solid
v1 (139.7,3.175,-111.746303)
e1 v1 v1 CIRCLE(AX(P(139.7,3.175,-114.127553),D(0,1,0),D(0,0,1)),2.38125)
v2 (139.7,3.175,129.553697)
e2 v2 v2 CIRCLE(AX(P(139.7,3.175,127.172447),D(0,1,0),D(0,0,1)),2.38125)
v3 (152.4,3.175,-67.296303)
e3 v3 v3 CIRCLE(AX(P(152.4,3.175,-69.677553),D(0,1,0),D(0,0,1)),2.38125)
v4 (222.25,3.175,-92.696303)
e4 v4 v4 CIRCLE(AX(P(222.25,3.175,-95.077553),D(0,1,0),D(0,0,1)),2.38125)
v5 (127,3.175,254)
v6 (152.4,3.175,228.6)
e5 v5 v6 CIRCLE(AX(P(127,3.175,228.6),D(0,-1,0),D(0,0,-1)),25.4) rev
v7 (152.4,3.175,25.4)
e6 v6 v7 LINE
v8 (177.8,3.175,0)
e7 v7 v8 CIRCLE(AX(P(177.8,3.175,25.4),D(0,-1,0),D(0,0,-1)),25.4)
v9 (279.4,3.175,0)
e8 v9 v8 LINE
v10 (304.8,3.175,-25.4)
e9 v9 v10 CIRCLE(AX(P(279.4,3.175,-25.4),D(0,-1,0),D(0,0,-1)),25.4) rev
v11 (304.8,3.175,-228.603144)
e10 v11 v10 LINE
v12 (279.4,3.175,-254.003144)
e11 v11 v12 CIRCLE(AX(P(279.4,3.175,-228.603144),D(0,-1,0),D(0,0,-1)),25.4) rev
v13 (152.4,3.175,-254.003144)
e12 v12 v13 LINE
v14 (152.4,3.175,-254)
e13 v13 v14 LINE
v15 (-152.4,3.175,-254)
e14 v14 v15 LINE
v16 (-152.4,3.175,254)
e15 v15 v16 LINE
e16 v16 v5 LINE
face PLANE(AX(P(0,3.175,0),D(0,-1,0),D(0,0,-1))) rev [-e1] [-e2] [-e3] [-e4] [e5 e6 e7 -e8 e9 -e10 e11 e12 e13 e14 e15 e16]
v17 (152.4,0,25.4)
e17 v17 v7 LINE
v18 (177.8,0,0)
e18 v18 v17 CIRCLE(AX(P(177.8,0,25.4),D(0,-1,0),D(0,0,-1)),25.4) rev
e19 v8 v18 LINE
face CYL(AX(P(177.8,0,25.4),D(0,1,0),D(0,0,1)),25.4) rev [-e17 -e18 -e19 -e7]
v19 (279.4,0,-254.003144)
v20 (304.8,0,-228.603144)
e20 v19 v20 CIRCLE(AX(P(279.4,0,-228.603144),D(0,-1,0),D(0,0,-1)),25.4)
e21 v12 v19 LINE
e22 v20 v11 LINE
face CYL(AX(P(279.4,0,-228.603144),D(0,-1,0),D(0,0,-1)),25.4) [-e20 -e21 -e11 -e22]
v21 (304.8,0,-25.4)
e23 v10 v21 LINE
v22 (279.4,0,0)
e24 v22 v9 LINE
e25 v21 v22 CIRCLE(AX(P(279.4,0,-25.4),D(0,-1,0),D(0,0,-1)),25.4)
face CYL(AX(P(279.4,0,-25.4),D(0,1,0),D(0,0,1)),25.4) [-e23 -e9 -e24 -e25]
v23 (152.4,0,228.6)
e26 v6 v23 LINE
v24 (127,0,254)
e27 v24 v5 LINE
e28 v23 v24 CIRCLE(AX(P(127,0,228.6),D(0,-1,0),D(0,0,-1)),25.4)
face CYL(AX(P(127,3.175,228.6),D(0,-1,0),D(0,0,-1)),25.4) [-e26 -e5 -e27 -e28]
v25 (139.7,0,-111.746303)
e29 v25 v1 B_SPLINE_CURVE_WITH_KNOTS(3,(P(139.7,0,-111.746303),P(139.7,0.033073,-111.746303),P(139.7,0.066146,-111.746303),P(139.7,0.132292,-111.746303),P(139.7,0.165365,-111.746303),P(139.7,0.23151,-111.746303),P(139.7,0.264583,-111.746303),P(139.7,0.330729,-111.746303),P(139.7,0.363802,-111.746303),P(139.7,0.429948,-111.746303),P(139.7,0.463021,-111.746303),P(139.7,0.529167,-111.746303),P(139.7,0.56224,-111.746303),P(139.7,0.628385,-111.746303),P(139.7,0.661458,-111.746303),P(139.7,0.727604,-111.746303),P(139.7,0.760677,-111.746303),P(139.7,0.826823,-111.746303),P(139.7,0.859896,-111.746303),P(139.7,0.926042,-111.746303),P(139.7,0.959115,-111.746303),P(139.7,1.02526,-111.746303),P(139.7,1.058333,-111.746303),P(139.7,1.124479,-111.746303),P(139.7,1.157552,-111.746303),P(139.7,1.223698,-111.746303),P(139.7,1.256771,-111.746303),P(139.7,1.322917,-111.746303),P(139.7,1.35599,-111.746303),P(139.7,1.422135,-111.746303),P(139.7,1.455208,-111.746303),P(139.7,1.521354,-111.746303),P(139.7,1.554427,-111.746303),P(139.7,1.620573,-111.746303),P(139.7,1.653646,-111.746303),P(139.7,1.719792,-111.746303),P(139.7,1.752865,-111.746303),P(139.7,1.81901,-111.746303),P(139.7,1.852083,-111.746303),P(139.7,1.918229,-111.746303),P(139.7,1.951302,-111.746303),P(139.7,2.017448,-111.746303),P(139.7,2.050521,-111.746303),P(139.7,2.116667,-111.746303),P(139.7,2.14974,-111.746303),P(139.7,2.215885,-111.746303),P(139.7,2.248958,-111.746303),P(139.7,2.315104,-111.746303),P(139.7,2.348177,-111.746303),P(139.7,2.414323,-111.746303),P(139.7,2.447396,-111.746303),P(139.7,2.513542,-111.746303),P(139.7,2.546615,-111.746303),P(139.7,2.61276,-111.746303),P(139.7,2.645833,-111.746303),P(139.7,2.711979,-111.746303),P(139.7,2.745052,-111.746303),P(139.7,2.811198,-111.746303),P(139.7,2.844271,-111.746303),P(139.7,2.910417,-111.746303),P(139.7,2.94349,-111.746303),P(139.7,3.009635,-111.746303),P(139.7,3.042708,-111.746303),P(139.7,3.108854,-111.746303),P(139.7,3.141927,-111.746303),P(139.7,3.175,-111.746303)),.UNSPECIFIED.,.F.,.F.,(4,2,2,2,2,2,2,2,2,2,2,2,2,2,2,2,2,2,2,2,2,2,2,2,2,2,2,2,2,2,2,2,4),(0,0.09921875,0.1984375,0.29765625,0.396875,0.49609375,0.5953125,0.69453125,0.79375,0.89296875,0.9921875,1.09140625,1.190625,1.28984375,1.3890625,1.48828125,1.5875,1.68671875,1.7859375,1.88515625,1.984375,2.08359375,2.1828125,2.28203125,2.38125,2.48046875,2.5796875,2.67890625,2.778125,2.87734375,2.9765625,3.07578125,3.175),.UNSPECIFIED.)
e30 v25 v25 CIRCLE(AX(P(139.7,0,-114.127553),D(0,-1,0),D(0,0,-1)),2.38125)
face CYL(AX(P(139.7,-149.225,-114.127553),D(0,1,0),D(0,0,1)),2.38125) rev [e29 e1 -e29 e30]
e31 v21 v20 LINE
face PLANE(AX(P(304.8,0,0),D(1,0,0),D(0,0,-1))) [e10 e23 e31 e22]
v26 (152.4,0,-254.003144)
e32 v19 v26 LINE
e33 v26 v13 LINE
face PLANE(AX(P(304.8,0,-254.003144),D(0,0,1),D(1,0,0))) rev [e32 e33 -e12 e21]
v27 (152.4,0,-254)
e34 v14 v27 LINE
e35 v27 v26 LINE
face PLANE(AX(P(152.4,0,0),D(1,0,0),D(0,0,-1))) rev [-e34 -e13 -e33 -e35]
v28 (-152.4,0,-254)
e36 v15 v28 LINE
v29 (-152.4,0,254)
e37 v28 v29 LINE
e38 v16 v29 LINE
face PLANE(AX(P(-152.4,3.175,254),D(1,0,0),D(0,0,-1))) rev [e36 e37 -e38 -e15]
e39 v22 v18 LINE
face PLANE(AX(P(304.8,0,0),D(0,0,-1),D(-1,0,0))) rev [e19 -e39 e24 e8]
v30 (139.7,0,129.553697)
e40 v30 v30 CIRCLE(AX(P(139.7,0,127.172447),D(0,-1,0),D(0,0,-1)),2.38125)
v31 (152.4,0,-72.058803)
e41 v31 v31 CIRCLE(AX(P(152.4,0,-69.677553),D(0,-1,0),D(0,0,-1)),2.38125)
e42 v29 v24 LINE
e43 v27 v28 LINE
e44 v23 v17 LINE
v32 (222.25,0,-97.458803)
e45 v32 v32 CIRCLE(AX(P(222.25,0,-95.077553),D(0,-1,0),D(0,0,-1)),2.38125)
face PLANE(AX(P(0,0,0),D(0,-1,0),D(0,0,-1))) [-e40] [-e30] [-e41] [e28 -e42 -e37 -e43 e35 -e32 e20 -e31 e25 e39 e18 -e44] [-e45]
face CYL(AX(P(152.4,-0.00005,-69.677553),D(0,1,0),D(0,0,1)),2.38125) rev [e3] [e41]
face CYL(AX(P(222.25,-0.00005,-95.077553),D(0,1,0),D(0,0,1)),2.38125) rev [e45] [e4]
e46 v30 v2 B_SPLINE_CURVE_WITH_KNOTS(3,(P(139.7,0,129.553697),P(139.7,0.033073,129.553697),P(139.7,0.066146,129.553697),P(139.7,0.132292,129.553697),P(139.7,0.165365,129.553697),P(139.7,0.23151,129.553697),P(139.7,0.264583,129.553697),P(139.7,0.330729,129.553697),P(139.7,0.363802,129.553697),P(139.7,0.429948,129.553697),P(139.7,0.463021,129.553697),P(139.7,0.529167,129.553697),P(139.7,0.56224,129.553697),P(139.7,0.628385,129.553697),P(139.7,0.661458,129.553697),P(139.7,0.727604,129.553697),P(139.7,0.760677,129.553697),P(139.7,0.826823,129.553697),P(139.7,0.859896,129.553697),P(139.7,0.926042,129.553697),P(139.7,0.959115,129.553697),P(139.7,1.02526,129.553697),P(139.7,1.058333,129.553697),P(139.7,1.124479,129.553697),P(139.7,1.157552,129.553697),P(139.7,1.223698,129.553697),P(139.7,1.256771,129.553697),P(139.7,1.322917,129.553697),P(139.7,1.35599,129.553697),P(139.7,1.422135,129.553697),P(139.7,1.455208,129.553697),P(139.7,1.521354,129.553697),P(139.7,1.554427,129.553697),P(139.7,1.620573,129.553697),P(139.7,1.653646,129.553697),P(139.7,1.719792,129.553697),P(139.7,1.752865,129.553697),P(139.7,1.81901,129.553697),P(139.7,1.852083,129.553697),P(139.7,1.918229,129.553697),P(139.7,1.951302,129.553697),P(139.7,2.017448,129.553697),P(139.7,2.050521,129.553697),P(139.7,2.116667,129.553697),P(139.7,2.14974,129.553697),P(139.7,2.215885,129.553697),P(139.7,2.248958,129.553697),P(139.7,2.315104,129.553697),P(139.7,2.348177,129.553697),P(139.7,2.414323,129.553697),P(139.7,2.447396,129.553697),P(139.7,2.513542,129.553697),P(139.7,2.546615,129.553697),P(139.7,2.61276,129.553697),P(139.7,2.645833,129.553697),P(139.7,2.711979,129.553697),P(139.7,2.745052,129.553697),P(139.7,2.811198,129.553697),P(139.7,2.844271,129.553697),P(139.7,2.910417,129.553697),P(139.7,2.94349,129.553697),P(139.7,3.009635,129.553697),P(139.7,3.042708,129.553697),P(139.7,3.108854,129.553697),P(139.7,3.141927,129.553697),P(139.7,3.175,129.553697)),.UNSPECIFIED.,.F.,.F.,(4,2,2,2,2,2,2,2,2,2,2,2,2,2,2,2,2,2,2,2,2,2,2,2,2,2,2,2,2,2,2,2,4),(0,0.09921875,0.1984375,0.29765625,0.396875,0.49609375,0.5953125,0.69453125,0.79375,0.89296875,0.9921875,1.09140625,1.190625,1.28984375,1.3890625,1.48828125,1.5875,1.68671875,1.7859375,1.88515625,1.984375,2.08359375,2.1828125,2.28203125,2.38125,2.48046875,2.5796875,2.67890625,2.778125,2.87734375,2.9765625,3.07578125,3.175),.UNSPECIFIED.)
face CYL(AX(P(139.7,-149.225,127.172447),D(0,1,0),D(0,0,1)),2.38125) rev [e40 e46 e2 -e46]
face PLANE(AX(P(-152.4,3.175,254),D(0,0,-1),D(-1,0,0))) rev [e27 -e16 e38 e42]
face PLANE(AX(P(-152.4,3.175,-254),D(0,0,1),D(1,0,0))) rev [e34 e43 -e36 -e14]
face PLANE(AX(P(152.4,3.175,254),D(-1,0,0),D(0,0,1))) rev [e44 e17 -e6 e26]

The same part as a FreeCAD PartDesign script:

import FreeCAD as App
import Part
import Sketcher

V = App.Vector
Q = App.Units.Quantity


def edges_at(feature, points):
    """Names of the edges that pass closest to the given points."""
    edges = feature.Shape.Edges
    near = lambda p: min(range(len(edges)), key=lambda i: edges[i].distToShape(Part.Vertex(*p))[0])
    return sorted({f"Edge{near(p) + 1}" for p in points})


def add_polygon(sketch, points):
    """Adds a closed chain of lines whose ends are joined by coincident constraints."""
    first, n = sketch.GeometryCount, len(points)
    for a, b in zip(points, points[1:] + points[:1]):
        sketch.addGeometry(Part.LineSegment(App.Vector(*a, 0), App.Vector(*b, 0)), False)
    for i in range(n):
        sketch.addConstraint(Sketcher.Constraint("Coincident", first + i, 2, first + (i + 1) % n, 1))

doc = App.newDocument("Part")
body = doc.addObject("PartDesign::Body", "Body")

# Sketch on XZ plane
sketch1 = body.newObject("Sketcher::SketchObject", "Sketch")
sketch1.AttachmentSupport = (doc.getObject("XZ_Plane"), [""])
sketch1.MapMode = "FlatFace"
add_polygon(sketch1, [(-152, -254), (-152, 254), (152, 254), (152, -254)])  # lines 0-3
sketch1.addConstraint(Sketcher.Constraint("Vertical", 0))
sketch1.addConstraint(Sketcher.Constraint("Horizontal", 1))
sketch1.addConstraint(Sketcher.Constraint("Vertical", 2))
sketch1.addConstraint(Sketcher.Constraint("Horizontal", 3))
sketch1.addConstraint(Sketcher.Constraint("Symmetric", 0, 2, 2, 2, -1, 1))
sketch1.addConstraint(Sketcher.Constraint("DistanceX", 1, 1, 1, 2, Q("12 in")))
sketch1.addConstraint(Sketcher.Constraint("DistanceY", 0, 1, 0, 2, Q("20 in")))
pad1 = body.newObject("PartDesign::Pad", "Pad")
pad1.Profile = sketch1
pad1.Length = Q("0.125 in")
pad1.Reversed = True

# Sketch on YZ plane
sketch2 = body.newObject("Sketcher::SketchObject", "Sketch001")
sketch2.AttachmentSupport = (doc.getObject("YZ_Plane"), [""])
sketch2.MapMode = "FlatFace"
sketch2.AttachmentOffset = App.Placement(V(0, 0, 6 * 25.4), App.Rotation())
add_polygon(sketch2, [(3.2, 0), (0, 0), (0, -254), (3.2, -254)])  # lines 0-3
sketch2.addConstraint(Sketcher.Constraint("Horizontal", 0))
sketch2.addConstraint(Sketcher.Constraint("Vertical", 1))
sketch2.addConstraint(Sketcher.Constraint("Horizontal", 2))
sketch2.addConstraint(Sketcher.Constraint("Vertical", 3))
sketch2.addConstraint(Sketcher.Constraint("Coincident", 0, 2, -1, 1))
sketch2.addConstraint(Sketcher.Constraint("DistanceX", 0, 2, 0, 1, Q("0.125 in")))
sketch2.addConstraint(Sketcher.Constraint("DistanceY", 1, 2, 1, 1, Q("254.003144 mm")))
pad2 = body.newObject("PartDesign::Pad", "Pad001")
pad2.Profile = sketch2
pad2.Length = Q("6 in")
doc.recompute()

fillet = body.newObject("PartDesign::Fillet", "Fillet")
fillet.Base = (pad2, edges_at(pad2, [(152.4, 1.587, 0)]))
fillet.Radius = Q("1 in")
doc.recompute()

fillet2 = body.newObject("PartDesign::Fillet", "Fillet001")
fillet2.Base = (fillet, edges_at(fillet, [(304.8, 1.587, -254.003), (304.8, 1.587, 0)]))
fillet2.Radius = Q("1 in")

# Sketch on XZ plane
sketch3 = body.newObject("Sketcher::SketchObject", "Sketch002")
sketch3.AttachmentSupport = (doc.getObject("XZ_Plane"), [""])
sketch3.MapMode = "FlatFace"
sketch3.AttachmentOffset = App.Placement(V(0, 0, -0.125 * 25.4), App.Rotation())
sketch3.addGeometry(Part.Circle(V(139.7, 127.2, 0), V(0, 0, 1), 2.4), False)
sketch3.addGeometry(Part.Circle(V(139.7, -114.1, 0), V(0, 0, 1), 2.4), False)
sketch3.addConstraint(Sketcher.Constraint("Equal", 0, 1))
sketch3.addConstraint(Sketcher.Constraint("Vertical", 0, 3, 1, 3))
sketch3.addConstraint(Sketcher.Constraint("Diameter", 0, Q("0.1875 in")))
sketch3.addConstraint(Sketcher.Constraint("DistanceX", -1, 1, 0, 3, Q("5.5 in")))
sketch3.addConstraint(Sketcher.Constraint("DistanceY", 1, 3, 0, 3, Q("9.5 in")))
sketch3.addConstraint(Sketcher.Constraint("DistanceY", -1, 1, 0, 3, Q("127.172447 mm")))
pocket1 = body.newObject("PartDesign::Pocket", "Pocket")
pocket1.Profile = sketch3
pocket1.Length = Q("6 in")
pocket1.Reversed = True
doc.recompute()

fillet3 = body.newObject("PartDesign::Fillet", "Fillet002")
fillet3.Base = (pocket1, edges_at(pocket1, [(152.4, 1.587, 254)]))
fillet3.Radius = Q("1 in")

# Sketch on XZ plane
sketch4 = body.newObject("Sketcher::SketchObject", "Sketch003")
sketch4.AttachmentSupport = (doc.getObject("XZ_Plane"), [""])
sketch4.MapMode = "FlatFace"
sketch4.AttachmentOffset = App.Placement(V(0, 0, -0.125 * 25.4), App.Rotation())
sketch4.addGeometry(Part.Circle(V(152.4, -69.7, 0), V(0, 0, 1), 2.4), False)
sketch4.addGeometry(Part.Circle(V(222.2, -95.1, 0), V(0, 0, 1), 2.4), False)
sketch4.addGeometry(Part.Circle(V(139.7, -114.1, 0), V(0, 0, 1), 2.4), False)
sketch4.addConstraint(Sketcher.Constraint("Equal", 0, 1))
sketch4.addConstraint(Sketcher.Constraint("Equal", 1, 2))
sketch4.addConstraint(Sketcher.Constraint("Diameter", 0, Q("0.1875 in")))
sketch4.addConstraint(Sketcher.Constraint("DistanceX", -1, 1, 0, 3, Q("6 in")))
sketch4.addConstraint(Sketcher.Constraint("DistanceY", 1, 3, 0, 3, Q("1 in")))
sketch4.addConstraint(Sketcher.Constraint("DistanceX", -1, 1, 2, 3, Q("5.5 in")))
sketch4.addConstraint(Sketcher.Constraint("DistanceX", -1, 1, 1, 3, Q("8.75 in")))
sketch4.addConstraint(Sketcher.Constraint("DistanceY", 2, 3, 0, 3, Q("1.75 in")))
sketch4.addConstraint(Sketcher.Constraint("DistanceY", 0, 3, -1, 1, Q("69.677553 mm")))
pocket2 = body.newObject("PartDesign::Pocket", "Pocket001")
pocket2.Profile = sketch4
pocket2.Type = "ThroughAll"
pocket2.Reversed = True

doc.recompute()
